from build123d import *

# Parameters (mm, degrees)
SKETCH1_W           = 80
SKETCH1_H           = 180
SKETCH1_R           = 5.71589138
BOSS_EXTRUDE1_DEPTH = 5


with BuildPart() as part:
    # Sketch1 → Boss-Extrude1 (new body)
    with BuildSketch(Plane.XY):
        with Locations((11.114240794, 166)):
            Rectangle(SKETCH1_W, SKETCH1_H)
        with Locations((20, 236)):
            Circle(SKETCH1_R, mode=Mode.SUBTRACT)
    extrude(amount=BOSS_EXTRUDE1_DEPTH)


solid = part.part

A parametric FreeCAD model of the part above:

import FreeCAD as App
import Part
import Sketcher

doc = App.newDocument("Part")
body = doc.addObject("PartDesign::Body", "Body")

# Sketch on XY plane
sketch1 = body.newObject("Sketcher::SketchObject", "Sketch")
sketch1.AttachmentSupport = (doc.getObject("XY_Plane"), [""])
sketch1.MapMode = "FlatFace"
sketch1.addGeometry([
    Part.LineSegment(App.Vector(-29, 256, 0), App.Vector(-29, 76, 0)),  # 0
    Part.LineSegment(App.Vector(-29, 76, 0), App.Vector(51, 76, 0)),  # 1
    Part.LineSegment(App.Vector(51, 76, 0), App.Vector(51, 256, 0)),  # 2
    Part.LineSegment(App.Vector(51, 256, 0), App.Vector(-29, 256, 0)),  # 3
    Part.Circle(App.Vector(20, 236, 0), App.Vector(0, 0, 1), 6),  # 4
], False)
sketch1.addConstraint([
    Sketcher.Constraint("Coincident", 0, 2, 1, 1),
    Sketcher.Constraint("Coincident", 1, 2, 2, 1),
    Sketcher.Constraint("Coincident", 2, 2, 3, 1),
    Sketcher.Constraint("Coincident", 3, 2, 0, 1),
    Sketcher.Constraint("Vertical", 0),
    Sketcher.Constraint("Horizontal", 1),
    Sketcher.Constraint("Vertical", 2),
    Sketcher.Constraint("Horizontal", 3),
    Sketcher.Constraint("DistanceX", 1, 1, 1, 2, 80.0),
    Sketcher.Constraint("DistanceY", 0, 2, 0, 1, 180.0),
    Sketcher.Constraint("DistanceX", -1, 1, 4, 3, 20.0),
    Sketcher.Constraint("DistanceY", -1, 1, 4, 3, 236.0),
    Sketcher.Constraint("DistanceY", -1, 1, 0, 2, 76.0),
    Sketcher.Constraint("Diameter", 4, 11.431783),
    Sketcher.Constraint("DistanceX", 0, 2, -1, 1, 28.885759),
])
pad1 = body.newObject("PartDesign::Pad", "Pad")
pad1.Profile = sketch1
pad1.Length = 5

doc.recompute()
